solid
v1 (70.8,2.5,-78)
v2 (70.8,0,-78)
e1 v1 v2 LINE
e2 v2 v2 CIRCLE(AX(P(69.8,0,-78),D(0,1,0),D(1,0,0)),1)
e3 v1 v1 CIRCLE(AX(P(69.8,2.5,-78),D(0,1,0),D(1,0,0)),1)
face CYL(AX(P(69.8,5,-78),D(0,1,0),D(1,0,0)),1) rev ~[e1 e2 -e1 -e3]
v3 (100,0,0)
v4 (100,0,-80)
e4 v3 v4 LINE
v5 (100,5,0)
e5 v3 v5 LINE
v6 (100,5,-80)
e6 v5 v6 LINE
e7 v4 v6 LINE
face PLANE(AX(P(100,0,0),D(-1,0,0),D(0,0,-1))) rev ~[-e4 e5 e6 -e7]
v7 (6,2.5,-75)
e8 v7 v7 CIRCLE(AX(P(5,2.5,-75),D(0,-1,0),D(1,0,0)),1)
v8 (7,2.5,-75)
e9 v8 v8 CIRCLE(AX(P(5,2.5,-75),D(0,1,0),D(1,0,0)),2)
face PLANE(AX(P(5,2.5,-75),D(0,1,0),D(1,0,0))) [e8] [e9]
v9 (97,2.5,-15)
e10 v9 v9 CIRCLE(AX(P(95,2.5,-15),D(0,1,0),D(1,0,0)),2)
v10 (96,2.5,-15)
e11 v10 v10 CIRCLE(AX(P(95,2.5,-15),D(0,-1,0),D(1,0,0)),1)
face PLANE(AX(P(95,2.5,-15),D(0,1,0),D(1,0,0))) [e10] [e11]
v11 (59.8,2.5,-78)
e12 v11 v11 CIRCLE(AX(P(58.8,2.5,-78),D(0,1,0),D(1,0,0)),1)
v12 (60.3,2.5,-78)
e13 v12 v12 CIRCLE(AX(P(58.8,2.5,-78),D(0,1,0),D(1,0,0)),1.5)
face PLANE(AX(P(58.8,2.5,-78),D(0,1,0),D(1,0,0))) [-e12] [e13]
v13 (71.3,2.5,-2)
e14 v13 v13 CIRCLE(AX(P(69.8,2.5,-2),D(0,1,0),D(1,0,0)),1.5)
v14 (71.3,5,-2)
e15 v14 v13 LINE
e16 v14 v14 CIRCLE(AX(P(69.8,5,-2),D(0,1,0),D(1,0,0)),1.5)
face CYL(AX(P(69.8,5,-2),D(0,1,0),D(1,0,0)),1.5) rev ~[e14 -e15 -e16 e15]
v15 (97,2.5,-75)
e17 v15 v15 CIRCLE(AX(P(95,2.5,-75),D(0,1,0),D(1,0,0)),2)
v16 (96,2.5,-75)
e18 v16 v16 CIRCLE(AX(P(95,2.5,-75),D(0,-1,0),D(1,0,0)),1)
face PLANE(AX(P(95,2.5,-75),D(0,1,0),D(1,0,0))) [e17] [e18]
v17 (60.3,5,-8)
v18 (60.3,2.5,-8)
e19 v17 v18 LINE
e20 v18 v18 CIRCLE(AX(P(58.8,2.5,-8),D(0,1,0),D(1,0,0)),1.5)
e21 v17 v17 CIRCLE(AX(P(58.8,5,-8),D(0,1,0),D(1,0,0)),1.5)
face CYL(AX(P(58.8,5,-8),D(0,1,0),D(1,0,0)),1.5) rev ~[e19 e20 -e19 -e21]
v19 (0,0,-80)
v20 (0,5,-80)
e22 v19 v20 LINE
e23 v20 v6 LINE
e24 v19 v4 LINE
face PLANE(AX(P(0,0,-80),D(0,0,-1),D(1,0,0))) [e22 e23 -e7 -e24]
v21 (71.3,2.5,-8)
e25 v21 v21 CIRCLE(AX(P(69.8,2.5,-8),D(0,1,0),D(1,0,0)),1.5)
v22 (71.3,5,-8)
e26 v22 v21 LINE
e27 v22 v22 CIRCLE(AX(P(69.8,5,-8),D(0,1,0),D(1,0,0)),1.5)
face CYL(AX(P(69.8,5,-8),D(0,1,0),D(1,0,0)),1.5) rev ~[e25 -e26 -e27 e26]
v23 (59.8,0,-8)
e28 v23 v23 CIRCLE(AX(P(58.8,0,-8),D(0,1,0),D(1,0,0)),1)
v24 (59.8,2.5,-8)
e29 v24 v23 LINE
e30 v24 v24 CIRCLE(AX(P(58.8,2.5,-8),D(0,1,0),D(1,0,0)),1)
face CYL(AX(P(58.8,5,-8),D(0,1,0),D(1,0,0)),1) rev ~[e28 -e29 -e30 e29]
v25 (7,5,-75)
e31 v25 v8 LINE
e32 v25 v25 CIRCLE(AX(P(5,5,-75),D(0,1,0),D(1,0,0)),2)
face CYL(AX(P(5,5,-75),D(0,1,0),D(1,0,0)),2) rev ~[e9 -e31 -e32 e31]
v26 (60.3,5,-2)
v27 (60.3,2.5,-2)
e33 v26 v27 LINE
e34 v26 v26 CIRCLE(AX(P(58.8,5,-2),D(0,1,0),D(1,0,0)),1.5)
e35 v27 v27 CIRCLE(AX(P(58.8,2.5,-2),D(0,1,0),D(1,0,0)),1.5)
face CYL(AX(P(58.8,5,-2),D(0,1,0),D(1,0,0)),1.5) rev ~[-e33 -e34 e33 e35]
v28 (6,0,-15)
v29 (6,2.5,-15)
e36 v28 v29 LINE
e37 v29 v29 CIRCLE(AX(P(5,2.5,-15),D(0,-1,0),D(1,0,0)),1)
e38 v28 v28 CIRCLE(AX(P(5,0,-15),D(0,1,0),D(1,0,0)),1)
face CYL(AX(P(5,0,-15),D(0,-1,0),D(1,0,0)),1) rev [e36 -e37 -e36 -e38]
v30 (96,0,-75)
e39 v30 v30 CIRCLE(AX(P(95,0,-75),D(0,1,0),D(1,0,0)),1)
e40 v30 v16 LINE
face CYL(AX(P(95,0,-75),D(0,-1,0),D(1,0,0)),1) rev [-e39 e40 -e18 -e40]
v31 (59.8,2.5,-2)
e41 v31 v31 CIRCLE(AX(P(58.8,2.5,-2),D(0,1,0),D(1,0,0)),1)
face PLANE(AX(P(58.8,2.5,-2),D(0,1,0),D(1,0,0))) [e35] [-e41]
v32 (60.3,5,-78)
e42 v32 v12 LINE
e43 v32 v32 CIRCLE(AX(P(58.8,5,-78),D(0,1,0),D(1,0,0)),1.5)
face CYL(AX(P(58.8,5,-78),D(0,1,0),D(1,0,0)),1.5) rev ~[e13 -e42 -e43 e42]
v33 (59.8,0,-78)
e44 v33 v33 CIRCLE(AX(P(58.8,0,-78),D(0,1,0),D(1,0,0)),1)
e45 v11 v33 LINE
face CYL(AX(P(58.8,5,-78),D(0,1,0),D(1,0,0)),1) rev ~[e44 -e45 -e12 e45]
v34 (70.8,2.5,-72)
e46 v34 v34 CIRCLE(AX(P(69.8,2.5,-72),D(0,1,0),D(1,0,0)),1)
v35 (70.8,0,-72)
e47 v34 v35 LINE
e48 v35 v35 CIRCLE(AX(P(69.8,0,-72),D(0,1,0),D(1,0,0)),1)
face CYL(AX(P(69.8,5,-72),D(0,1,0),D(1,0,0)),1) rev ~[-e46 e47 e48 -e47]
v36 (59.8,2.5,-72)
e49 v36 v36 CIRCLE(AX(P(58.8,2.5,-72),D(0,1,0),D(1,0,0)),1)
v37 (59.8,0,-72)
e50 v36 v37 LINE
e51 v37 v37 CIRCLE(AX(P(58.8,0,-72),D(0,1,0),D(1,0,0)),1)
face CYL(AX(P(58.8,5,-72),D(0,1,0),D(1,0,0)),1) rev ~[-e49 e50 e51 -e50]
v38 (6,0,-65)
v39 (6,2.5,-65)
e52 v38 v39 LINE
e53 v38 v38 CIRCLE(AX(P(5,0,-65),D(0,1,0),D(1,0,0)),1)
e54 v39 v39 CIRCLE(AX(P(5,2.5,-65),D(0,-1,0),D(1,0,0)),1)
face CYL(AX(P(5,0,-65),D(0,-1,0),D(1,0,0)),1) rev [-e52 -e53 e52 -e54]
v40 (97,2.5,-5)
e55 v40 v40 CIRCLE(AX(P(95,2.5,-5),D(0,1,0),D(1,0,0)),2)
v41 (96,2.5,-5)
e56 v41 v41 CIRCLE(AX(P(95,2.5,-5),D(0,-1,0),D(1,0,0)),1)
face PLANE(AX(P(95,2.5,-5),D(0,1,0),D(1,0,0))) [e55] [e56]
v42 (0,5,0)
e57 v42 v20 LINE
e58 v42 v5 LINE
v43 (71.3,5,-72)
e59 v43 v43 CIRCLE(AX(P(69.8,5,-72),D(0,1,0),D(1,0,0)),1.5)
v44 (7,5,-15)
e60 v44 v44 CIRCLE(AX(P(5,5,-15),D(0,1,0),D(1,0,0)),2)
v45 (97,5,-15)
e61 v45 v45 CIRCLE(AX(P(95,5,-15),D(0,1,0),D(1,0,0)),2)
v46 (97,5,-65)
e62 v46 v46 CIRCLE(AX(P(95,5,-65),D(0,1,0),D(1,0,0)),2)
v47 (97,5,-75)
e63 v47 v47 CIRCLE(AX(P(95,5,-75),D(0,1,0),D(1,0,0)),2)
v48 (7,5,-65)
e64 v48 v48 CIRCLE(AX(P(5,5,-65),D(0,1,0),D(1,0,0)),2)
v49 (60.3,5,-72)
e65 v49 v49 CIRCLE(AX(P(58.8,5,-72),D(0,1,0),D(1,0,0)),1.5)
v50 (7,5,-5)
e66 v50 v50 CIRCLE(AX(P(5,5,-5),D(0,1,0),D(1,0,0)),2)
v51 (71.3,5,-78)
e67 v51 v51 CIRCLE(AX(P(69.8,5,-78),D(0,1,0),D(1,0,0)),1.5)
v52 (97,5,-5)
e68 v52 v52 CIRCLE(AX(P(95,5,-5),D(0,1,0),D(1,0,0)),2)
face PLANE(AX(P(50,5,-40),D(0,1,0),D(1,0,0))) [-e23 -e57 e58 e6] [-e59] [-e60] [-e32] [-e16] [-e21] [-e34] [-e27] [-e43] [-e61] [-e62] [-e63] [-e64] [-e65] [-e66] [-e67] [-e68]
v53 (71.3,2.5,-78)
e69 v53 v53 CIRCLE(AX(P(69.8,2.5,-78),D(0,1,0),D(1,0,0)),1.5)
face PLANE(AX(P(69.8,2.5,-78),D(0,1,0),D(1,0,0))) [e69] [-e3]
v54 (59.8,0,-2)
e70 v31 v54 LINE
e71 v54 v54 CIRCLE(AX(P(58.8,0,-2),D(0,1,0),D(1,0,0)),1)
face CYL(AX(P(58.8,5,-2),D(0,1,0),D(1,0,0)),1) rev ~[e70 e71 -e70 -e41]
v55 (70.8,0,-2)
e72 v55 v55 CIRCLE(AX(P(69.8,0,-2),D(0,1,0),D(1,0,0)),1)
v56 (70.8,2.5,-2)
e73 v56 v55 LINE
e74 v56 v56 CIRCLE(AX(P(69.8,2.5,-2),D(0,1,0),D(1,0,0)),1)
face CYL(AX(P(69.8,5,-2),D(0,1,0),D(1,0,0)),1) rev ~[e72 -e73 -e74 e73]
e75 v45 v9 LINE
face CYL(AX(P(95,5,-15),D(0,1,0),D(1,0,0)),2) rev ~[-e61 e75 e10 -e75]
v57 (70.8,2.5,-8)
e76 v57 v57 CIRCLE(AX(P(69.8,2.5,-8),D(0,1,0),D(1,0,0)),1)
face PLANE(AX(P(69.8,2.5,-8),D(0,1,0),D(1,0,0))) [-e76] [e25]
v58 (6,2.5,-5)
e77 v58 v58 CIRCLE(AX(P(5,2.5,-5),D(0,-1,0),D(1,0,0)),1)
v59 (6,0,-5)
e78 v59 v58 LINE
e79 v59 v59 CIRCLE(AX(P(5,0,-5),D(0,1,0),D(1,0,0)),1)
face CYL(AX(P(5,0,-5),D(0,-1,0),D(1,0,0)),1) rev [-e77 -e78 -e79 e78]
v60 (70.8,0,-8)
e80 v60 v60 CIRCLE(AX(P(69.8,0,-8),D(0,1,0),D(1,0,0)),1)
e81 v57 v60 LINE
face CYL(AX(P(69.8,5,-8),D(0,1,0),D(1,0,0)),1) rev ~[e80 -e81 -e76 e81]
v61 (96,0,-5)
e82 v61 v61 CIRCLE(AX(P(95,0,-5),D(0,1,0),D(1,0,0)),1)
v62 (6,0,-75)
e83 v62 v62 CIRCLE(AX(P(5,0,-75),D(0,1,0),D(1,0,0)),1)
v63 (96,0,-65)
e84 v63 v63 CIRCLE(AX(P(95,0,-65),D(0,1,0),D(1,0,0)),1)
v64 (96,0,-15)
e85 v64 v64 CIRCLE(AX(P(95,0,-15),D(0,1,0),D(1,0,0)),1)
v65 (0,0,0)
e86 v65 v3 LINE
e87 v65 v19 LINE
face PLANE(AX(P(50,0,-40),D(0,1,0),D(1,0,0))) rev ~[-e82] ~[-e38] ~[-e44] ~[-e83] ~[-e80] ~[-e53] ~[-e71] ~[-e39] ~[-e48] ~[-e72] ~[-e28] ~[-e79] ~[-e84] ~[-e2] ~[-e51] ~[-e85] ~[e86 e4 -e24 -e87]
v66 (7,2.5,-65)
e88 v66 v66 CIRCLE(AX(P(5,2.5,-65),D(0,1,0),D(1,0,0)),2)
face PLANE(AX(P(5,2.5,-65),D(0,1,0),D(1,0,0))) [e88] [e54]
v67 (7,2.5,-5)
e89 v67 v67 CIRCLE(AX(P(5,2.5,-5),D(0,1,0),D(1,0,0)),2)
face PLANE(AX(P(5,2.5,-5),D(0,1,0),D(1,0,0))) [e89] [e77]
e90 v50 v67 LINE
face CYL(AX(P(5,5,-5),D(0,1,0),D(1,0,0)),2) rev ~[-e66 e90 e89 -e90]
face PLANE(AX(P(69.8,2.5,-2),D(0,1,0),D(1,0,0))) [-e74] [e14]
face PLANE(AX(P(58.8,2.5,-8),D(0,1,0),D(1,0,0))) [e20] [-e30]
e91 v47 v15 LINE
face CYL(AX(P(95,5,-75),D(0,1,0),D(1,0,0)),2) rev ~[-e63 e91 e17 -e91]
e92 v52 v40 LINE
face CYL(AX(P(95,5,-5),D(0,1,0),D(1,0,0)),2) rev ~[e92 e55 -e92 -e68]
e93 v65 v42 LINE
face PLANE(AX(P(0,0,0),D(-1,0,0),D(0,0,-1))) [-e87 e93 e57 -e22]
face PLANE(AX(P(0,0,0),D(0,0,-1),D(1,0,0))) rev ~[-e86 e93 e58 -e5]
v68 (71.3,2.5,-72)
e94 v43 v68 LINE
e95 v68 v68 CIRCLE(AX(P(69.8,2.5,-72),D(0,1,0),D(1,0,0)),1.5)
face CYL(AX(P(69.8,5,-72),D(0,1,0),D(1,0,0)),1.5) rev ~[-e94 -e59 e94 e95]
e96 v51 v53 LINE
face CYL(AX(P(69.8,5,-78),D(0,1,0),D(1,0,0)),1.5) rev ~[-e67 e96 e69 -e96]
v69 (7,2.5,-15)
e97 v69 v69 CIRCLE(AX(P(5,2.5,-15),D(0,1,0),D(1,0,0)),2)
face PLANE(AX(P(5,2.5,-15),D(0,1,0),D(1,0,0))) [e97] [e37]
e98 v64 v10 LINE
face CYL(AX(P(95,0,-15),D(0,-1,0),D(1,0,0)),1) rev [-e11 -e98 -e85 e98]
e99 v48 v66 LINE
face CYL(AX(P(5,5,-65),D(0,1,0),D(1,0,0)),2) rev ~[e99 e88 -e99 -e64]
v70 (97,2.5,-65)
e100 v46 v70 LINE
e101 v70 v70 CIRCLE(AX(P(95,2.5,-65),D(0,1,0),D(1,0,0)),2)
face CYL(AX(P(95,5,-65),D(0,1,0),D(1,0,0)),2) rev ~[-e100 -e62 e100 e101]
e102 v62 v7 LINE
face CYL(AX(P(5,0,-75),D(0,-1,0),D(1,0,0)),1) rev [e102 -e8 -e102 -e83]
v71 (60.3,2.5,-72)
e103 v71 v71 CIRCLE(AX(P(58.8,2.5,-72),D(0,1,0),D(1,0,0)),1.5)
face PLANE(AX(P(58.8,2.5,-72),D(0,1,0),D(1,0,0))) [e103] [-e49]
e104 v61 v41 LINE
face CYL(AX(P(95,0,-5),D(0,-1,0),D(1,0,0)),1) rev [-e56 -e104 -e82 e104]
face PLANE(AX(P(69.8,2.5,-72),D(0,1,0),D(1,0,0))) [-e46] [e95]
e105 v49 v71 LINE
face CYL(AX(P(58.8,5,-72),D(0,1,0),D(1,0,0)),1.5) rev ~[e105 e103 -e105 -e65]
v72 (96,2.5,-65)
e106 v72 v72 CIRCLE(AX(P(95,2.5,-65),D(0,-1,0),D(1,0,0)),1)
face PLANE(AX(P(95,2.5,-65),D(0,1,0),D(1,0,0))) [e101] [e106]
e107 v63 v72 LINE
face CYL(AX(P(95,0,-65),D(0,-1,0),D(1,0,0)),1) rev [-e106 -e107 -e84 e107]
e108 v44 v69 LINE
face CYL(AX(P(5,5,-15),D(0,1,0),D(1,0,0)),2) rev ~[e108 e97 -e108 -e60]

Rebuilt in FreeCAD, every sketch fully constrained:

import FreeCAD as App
import Part
import Sketcher
from FreeCAD import Vector

doc = App.newDocument("Part")
body = doc.addObject("PartDesign::Body", "Body")

sketch1 = body.newObject("Sketcher::SketchObject", "Sketch")
sketch1.AttachmentSupport = (doc.getObject("XZ_Plane"), [""])
sketch1.MapMode = "FlatFace"
sketch1.addGeometry([
    Part.LineSegment(Vector(0, -80, 0), Vector(0, 0, 0)),
    Part.LineSegment(Vector(0, 0, 0), Vector(100, 0, 0)),
    Part.LineSegment(Vector(100, 0, 0), Vector(100, -80, 0)),
    Part.LineSegment(Vector(100, -80, 0), Vector(0, -80, 0)),
    Part.Circle(Vector(5, -5, 0), Vector(0, 0, 1), 1),
    Part.Circle(Vector(5, -15, 0), Vector(0, 0, 1), 1),
    Part.Circle(Vector(95, -5, 0), Vector(0, 0, 1), 1),
    Part.Circle(Vector(95, -15, 0), Vector(0, 0, 1), 1),
    Part.Circle(Vector(5, -65, 0), Vector(0, 0, 1), 1),
    Part.Circle(Vector(5, -75, 0), Vector(0, 0, 1), 1),
    Part.Circle(Vector(95, -65, 0), Vector(0, 0, 1), 1),
    Part.Circle(Vector(95, -75, 0), Vector(0, 0, 1), 1),
], False)
sketch1.addConstraint([
    Sketcher.Constraint("Coincident", 0, 2, 1, 1),
    Sketcher.Constraint("Coincident", 1, 2, 2, 1),
    Sketcher.Constraint("Coincident", 2, 2, 3, 1),
    Sketcher.Constraint("Coincident", 3, 2, 0, 1),
    Sketcher.Constraint("Vertical", 0),
    Sketcher.Constraint("Horizontal", 1),
    Sketcher.Constraint("Vertical", 2),
    Sketcher.Constraint("Horizontal", 3),
    Sketcher.Constraint("Coincident", 0, 2, -1, 1),
    Sketcher.Constraint("Equal", 4, 5),
    Sketcher.Constraint("Equal", 5, 6),
    Sketcher.Constraint("Equal", 6, 7),
    Sketcher.Constraint("Equal", 7, 8),
    Sketcher.Constraint("Equal", 8, 9),
    Sketcher.Constraint("Equal", 9, 10),
    Sketcher.Constraint("Equal", 10, 11),
    Sketcher.Constraint("Horizontal", 4, 3, 6, 3),
    Sketcher.Constraint("Horizontal", 5, 3, 7, 3),
    Sketcher.Constraint("Horizontal", 8, 3, 10, 3),
    Sketcher.Constraint("Horizontal", 9, 3, 11, 3),
    Sketcher.Constraint("Vertical", 4, 3, 5, 3),
    Sketcher.Constraint("Vertical", 6, 3, 7, 3),
    Sketcher.Constraint("Vertical", 5, 3, 8, 3),
    Sketcher.Constraint("Vertical", 8, 3, 9, 3),
    Sketcher.Constraint("Vertical", 7, 3, 10, 3),
    Sketcher.Constraint("Vertical", 10, 3, 11, 3),
    Sketcher.Constraint("Diameter", 4, 2.0),
    Sketcher.Constraint("DistanceX", 1, 1, 1, 2, 100.0),
    Sketcher.Constraint("DistanceY", 0, 1, 0, 2, 80.0),
    Sketcher.Constraint("DistanceX", -1, 1, 4, 3, 5.0),
    Sketcher.Constraint("DistanceY", 4, 3, -1, 1, 5.0),
    Sketcher.Constraint("DistanceY", 5, 3, -1, 1, 15.0),
    Sketcher.Constraint("DistanceX", -1, 1, 6, 3, 95.0),
    Sketcher.Constraint("DistanceY", 8, 3, -1, 1, 65.0),
    Sketcher.Constraint("DistanceY", 9, 3, -1, 1, 75.0),
])
pad1 = body.newObject("PartDesign::Pad", "Pad")
pad1.Profile = sketch1
pad1.Length = 5
pad1.Reversed = True

sketch2 = body.newObject("Sketcher::SketchObject", "Sketch001")
sketch2.AttachmentSupport = (doc.getObject("XZ_Plane"), [""])
sketch2.MapMode = "FlatFace"
sketch2.AttachmentOffset = App.Placement(Vector(0, 0, -5), App.Rotation())
sketch2.addGeometry([
    Part.Circle(Vector(5, -75, 0), Vector(0, 0, 1), 2),
    Part.Circle(Vector(95, -75, 0), Vector(0, 0, 1), 2),
    Part.Circle(Vector(95, -5, 0), Vector(0, 0, 1), 2),
    Part.Circle(Vector(5, -5, 0), Vector(0, 0, 1), 2),
    Part.Circle(Vector(5, -65, 0), Vector(0, 0, 1), 2),
    Part.Circle(Vector(95, -65, 0), Vector(0, 0, 1), 2),
    Part.Circle(Vector(95, -15, 0), Vector(0, 0, 1), 2),
    Part.Circle(Vector(5, -15, 0), Vector(0, 0, 1), 2),
], False)
sketch2.addConstraint([
    Sketcher.Constraint("Equal", 0, 1),
    Sketcher.Constraint("Equal", 1, 2),
    Sketcher.Constraint("Equal", 2, 3),
    Sketcher.Constraint("Equal", 3, 4),
    Sketcher.Constraint("Equal", 4, 5),
    Sketcher.Constraint("Equal", 5, 6),
    Sketcher.Constraint("Equal", 6, 7),
    Sketcher.Constraint("Horizontal", 0, 3, 1, 3),
    Sketcher.Constraint("Horizontal", 2, 3, 3, 3),
    Sketcher.Constraint("Horizontal", 4, 3, 5, 3),
    Sketcher.Constraint("Horizontal", 6, 3, 7, 3),
    Sketcher.Constraint("Vertical", 1, 3, 2, 3),
    Sketcher.Constraint("Vertical", 0, 3, 3, 3),
    Sketcher.Constraint("Vertical", 3, 3, 4, 3),
    Sketcher.Constraint("Vertical", 2, 3, 5, 3),
    Sketcher.Constraint("Vertical", 5, 3, 6, 3),
    Sketcher.Constraint("Vertical", 4, 3, 7, 3),
    Sketcher.Constraint("Diameter", 0, 4.0),
    Sketcher.Constraint("DistanceX", -1, 1, 0, 3, 5.0),
    Sketcher.Constraint("DistanceY", 0, 3, -1, 1, 75.0),
    Sketcher.Constraint("DistanceX", -1, 1, 1, 3, 95.0),
    Sketcher.Constraint("DistanceY", 2, 3, -1, 1, 5.0),
    Sketcher.Constraint("DistanceY", 4, 3, -1, 1, 65.0),
    Sketcher.Constraint("DistanceY", 6, 3, -1, 1, 15.0),
])
pocket1 = body.newObject("PartDesign::Pocket", "Pocket")
pocket1.Profile = sketch2
pocket1.Type = "TwoLengths"
pocket1.Length = 1
pocket1.Length2 = 2.5

sketch3 = body.newObject("Sketcher::SketchObject", "Sketch002")
sketch3.AttachmentSupport = (doc.getObject("XZ_Plane"), [""])
sketch3.MapMode = "FlatFace"
sketch3.AttachmentOffset = App.Placement(Vector(0, 0, -5), App.Rotation())
sketch3.addGeometry([
    Part.Circle(Vector(58.8, -8, 0), Vector(0, 0, 1), 1),
    Part.Circle(Vector(69.8, -8, 0), Vector(0, 0, 1), 1),
    Part.Circle(Vector(58.8, -2, 0), Vector(0, 0, 1), 1),
    Part.Circle(Vector(69.8, -2, 0), Vector(0, 0, 1), 1),
    Part.Circle(Vector(58.8, -78, 0), Vector(0, 0, 1), 1),
    Part.Circle(Vector(69.8, -72, 0), Vector(0, 0, 1), 1),
    Part.Circle(Vector(69.8, -78, 0), Vector(0, 0, 1), 1),
    Part.Circle(Vector(58.8, -72, 0), Vector(0, 0, 1), 1),
], False)
sketch3.addConstraint([
    Sketcher.Constraint("Equal", 0, 1),
    Sketcher.Constraint("Equal", 1, 2),
    Sketcher.Constraint("Equal", 2, 3),
    Sketcher.Constraint("Equal", 3, 4),
    Sketcher.Constraint("Equal", 4, 5),
    Sketcher.Constraint("Equal", 5, 6),
    Sketcher.Constraint("Equal", 6, 7),
    Sketcher.Constraint("Horizontal", 0, 3, 1, 3),
    Sketcher.Constraint("Horizontal", 2, 3, 3, 3),
    Sketcher.Constraint("Horizontal", 4, 3, 6, 3),
    Sketcher.Constraint("Horizontal", 5, 3, 7, 3),
    Sketcher.Constraint("Vertical", 0, 3, 2, 3),
    Sketcher.Constraint("Vertical", 1, 3, 3, 3),
    Sketcher.Constraint("Vertical", 2, 3, 4, 3),
    Sketcher.Constraint("Vertical", 3, 3, 5, 3),
    Sketcher.Constraint("Vertical", 5, 3, 6, 3),
    Sketcher.Constraint("Vertical", 4, 3, 7, 3),
    Sketcher.Constraint("Diameter", 0, 2.0),
    Sketcher.Constraint("DistanceY", 0, 3, -1, 1, 8.0),
    Sketcher.Constraint("DistanceY", 2, 3, -1, 1, 2.0),
    Sketcher.Constraint("DistanceY", 4, 3, -1, 1, 78.0),
    Sketcher.Constraint("DistanceY", 5, 3, -1, 1, 72.0),
    Sketcher.Constraint("DistanceX", 0, 3, 1, 3, 11.0),
    Sketcher.Constraint("DistanceX", -1, 1, 0, 3, 58.8),
])
pocket2 = body.newObject("PartDesign::Pocket", "Pocket001")
pocket2.Profile = sketch3
pocket2.Type = "ThroughAll"
pocket2.Reversed = True

sketch4 = body.newObject("Sketcher::SketchObject", "Sketch003")
sketch4.AttachmentSupport = (doc.getObject("XZ_Plane"), [""])
sketch4.MapMode = "FlatFace"
sketch4.AttachmentOffset = App.Placement(Vector(0, 0, -5), App.Rotation())
sketch4.addGeometry([
    Part.Circle(Vector(58.8, -8, 0), Vector(0, 0, 1), 1.5),
    Part.Circle(Vector(58.8, -2, 0), Vector(0, 0, 1), 1.5),
    Part.Circle(Vector(69.8, -2, 0), Vector(0, 0, 1), 1.5),
    Part.Circle(Vector(69.8, -8, 0), Vector(0, 0, 1), 1.5),
    Part.Circle(Vector(58.8, -78, 0), Vector(0, 0, 1), 1.5),
    Part.Circle(Vector(58.8, -72, 0), Vector(0, 0, 1), 1.5),
    Part.Circle(Vector(69.8, -72, 0), Vector(0, 0, 1), 1.5),
    Part.Circle(Vector(69.8, -78, 0), Vector(0, 0, 1), 1.5),
], False)
sketch4.addConstraint([
    Sketcher.Constraint("Equal", 0, 1),
    Sketcher.Constraint("Equal", 1, 2),
    Sketcher.Constraint("Equal", 2, 3),
    Sketcher.Constraint("Equal", 3, 4),
    Sketcher.Constraint("Equal", 4, 5),
    Sketcher.Constraint("Equal", 5, 6),
    Sketcher.Constraint("Equal", 6, 7),
    Sketcher.Constraint("Horizontal", 1, 3, 2, 3),
    Sketcher.Constraint("Horizontal", 0, 3, 3, 3),
    Sketcher.Constraint("Horizontal", 5, 3, 6, 3),
    Sketcher.Constraint("Horizontal", 4, 3, 7, 3),
    Sketcher.Constraint("Vertical", 0, 3, 1, 3),
    Sketcher.Constraint("Vertical", 2, 3, 3, 3),
    Sketcher.Constraint("Vertical", 1, 3, 4, 3),
    Sketcher.Constraint("Vertical", 4, 3, 5, 3),
    Sketcher.Constraint("Vertical", 3, 3, 6, 3),
    Sketcher.Constraint("Vertical", 6, 3, 7, 3),
    Sketcher.Constraint("Diameter", 0, 3.0),
    Sketcher.Constraint("DistanceY", 0, 3, -1, 1, 8.0),
    Sketcher.Constraint("DistanceY", 1, 3, -1, 1, 2.0),
    Sketcher.Constraint("DistanceY", 4, 3, -1, 1, 78.0),
    Sketcher.Constraint("DistanceY", 5, 3, -1, 1, 72.0),
    Sketcher.Constraint("DistanceX", 1, 3, 2, 3, 11.0),
    Sketcher.Constraint("DistanceX", -1, 1, 0, 3, 58.8),
])
pocket3 = body.newObject("PartDesign::Pocket", "Pocket002")
pocket3.Profile = sketch4
pocket3.Length = 2.5
pocket3.Reversed = True

doc.recompute()
